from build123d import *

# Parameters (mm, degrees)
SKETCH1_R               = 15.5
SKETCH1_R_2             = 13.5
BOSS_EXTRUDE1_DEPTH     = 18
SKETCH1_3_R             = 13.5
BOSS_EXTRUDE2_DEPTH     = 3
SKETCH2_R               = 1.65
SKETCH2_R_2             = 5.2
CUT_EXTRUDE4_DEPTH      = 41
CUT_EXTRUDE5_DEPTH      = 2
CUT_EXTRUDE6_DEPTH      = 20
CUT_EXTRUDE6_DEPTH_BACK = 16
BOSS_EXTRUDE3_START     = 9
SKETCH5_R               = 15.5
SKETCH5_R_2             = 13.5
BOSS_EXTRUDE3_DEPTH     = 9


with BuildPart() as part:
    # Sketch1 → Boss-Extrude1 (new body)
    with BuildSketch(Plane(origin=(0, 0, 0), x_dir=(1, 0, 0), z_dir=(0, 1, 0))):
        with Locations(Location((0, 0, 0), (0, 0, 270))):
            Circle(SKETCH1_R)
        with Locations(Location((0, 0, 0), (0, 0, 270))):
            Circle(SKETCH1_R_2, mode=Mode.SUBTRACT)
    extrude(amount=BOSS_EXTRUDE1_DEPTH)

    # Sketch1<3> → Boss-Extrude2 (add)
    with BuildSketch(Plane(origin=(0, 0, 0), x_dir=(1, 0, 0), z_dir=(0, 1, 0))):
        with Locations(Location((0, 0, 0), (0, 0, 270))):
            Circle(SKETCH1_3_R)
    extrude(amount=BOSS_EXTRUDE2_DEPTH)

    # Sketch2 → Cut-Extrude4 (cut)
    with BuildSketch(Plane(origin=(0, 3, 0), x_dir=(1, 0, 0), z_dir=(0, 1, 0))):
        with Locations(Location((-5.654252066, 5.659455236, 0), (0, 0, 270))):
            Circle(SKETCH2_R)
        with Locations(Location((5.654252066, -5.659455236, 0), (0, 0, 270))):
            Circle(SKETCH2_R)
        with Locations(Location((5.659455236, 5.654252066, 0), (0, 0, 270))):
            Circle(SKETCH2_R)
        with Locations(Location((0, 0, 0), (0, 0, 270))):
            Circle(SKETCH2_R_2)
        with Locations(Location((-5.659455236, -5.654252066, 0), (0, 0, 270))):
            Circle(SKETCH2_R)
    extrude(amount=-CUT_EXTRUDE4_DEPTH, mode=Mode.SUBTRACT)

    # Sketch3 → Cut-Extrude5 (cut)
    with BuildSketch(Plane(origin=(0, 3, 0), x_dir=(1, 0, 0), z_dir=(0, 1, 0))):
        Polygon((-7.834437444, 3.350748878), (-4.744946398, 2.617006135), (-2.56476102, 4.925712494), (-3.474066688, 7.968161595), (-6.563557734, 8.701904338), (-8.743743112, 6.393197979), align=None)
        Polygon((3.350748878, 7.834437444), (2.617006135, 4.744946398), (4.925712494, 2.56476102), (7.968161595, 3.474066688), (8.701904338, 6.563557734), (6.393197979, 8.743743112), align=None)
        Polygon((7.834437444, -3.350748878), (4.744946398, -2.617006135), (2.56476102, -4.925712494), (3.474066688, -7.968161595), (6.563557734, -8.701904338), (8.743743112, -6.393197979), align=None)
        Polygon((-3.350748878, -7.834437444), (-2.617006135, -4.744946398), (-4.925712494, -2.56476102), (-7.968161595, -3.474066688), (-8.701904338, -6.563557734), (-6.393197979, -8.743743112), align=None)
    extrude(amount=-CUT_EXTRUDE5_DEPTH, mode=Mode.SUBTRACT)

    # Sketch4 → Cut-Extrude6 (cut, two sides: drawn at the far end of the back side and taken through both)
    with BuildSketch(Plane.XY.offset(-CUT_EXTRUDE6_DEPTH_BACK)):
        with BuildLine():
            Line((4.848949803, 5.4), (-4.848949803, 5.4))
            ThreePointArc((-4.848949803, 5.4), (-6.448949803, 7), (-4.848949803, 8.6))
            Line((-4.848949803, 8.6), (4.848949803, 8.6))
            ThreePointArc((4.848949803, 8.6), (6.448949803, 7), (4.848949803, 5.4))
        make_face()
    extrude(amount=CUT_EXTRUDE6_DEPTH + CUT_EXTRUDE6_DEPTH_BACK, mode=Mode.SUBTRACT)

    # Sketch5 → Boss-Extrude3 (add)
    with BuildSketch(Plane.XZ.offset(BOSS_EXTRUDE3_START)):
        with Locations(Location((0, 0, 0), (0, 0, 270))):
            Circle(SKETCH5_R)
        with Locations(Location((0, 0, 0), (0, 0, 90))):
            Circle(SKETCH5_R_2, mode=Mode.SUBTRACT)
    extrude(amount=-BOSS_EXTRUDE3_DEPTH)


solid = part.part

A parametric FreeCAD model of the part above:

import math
import FreeCAD as App
import Part
import Sketcher

V = App.Vector
Q = App.Units.Quantity


def add_polygon(sketch, points):
    """Adds a closed chain of lines whose ends are joined by coincident constraints."""
    first, n = sketch.GeometryCount, len(points)
    for a, b in zip(points, points[1:] + points[:1]):
        sketch.addGeometry(Part.LineSegment(App.Vector(*a, 0), App.Vector(*b, 0)), False)
    for i in range(n):
        sketch.addConstraint(Sketcher.Constraint("Coincident", first + i, 2, first + (i + 1) % n, 1))

doc = App.newDocument("Part")
body = doc.addObject("PartDesign::Body", "Body")

# Sketch on XZ plane
sketch1 = doc.addObject("Sketcher::SketchObject", "Sketch")
body.addObject(sketch1)
sketch1.AttachmentSupport = (doc.XZ_Plane, [""])
sketch1.MapMode = "FlatFace"
sketch1.addGeometry([
    Part.Circle(V(0, 0, 0), V(0, 0, 1), 16),
    Part.Circle(V(0, 0, 0), V(0, 0, 1), 14),
], False)
sketch1.addConstraint([
    Sketcher.Constraint("Coincident", 0, 3, -1, 1),
    Sketcher.Constraint("Coincident", 1, 3, -1, 1),
    Sketcher.Constraint("Diameter", 0, Q("31 mm")),
    Sketcher.Constraint("Diameter", 1, Q("27 mm")),
])
pad1 = doc.addObject("PartDesign::Pad", "Pad")
body.addObject(pad1)
pad1.Profile = sketch1
pad1.Length = 18
pad1.Reversed = True

# Sketch on XZ plane
sketch2 = doc.addObject("Sketcher::SketchObject", "Sketch001")
body.addObject(sketch2)
sketch2.AttachmentSupport = (doc.XZ_Plane, [""])
sketch2.MapMode = "FlatFace"
sketch2.addGeometry(Part.Circle(V(0, 0, 0), V(0, 0, 1), 14), False)
sketch2.addConstraint([
    Sketcher.Constraint("Coincident", 0, 3, -1, 1),
    Sketcher.Constraint("Diameter", 0, Q("27 mm")),
])
pad2 = doc.addObject("PartDesign::Pad", "Pad001")
body.addObject(pad2)
pad2.Profile = sketch2
pad2.Length = 3
pad2.Reversed = True

# Sketch on XZ plane
sketch3 = doc.addObject("Sketcher::SketchObject", "Sketch002")
body.addObject(sketch3)
sketch3.AttachmentSupport = (doc.XZ_Plane, [""])
sketch3.MapMode = "FlatFace"
sketch3.AttachmentOffset = App.Placement(V(0, 0, -3), App.Rotation())
sketch3.addGeometry([
    Part.Circle(V(-5.7, -5.7, 0), V(0, 0, 1), 1.6),  # 0
    Part.Circle(V(5.7, 5.7, 0), V(0, 0, 1), 1.6),  # 1
    Part.Circle(V(5.7, -5.7, 0), V(0, 0, 1), 1.6),  # 2
    Part.Circle(V(0, 0, 0), V(0, 0, 1), 5.2),  # 3
    Part.Circle(V(-5.7, 5.7, 0), V(0, 0, 1), 1.6),  # 4
], False)
sketch3.addConstraint([
    Sketcher.Constraint("Coincident", 3, 3, -1, 1),
    Sketcher.Constraint("Equal", 0, 1),
    Sketcher.Constraint("Equal", 1, 2),
    Sketcher.Constraint("Equal", 2, 4),
    Sketcher.Constraint("Symmetric", 0, 3, 1, 3, -1, 1),
    Sketcher.Constraint("Symmetric", 2, 3, 4, 3, -1, 1),
    Sketcher.Constraint("Diameter", 0, Q("3.3 mm")),
    Sketcher.Constraint("Diameter", 3, Q("10.4 mm")),
    Sketcher.Constraint("DistanceY", 0, 3, 1, 3, Q("11.31891 mm")),
    Sketcher.Constraint("DistanceX", 4, 3, 2, 3, Q("11.31891 mm")),
    Sketcher.Constraint("DistanceX", 0, 3, -1, 1, Q("5.654252 mm")),
    Sketcher.Constraint("DistanceY", 2, 3, -1, 1, Q("5.654252 mm")),
])
pocket1 = doc.addObject("PartDesign::Pocket", "Pocket")
body.addObject(pocket1)
pocket1.Profile = sketch3
pocket1.Length = 41
pocket1.Reversed = True

# Sketch on XZ plane
sketch4 = doc.addObject("Sketcher::SketchObject", "Sketch003")
body.addObject(sketch4)
sketch4.AttachmentSupport = (doc.XZ_Plane, [""])
sketch4.MapMode = "FlatFace"
sketch4.AttachmentOffset = App.Placement(V(0, 0, -3), App.Rotation())
add_polygon(sketch4, [(-7.8, -3.4), (-4.7, -2.6), (-2.6, -4.9), (-3.5, -8), (-6.6, -8.7), (-8.7, -6.4)])  # lines 0-5
add_polygon(sketch4, [(3.4, -7.8), (2.6, -4.7), (4.9, -2.6), (8, -3.5), (8.7, -6.6), (6.4, -8.7)])  # lines 6-11
add_polygon(sketch4, [(7.8, 3.4), (4.7, 2.6), (2.6, 4.9), (3.5, 8), (6.6, 8.7), (8.7, 6.4)])  # lines 12-17
add_polygon(sketch4, [(-3.4, 7.8), (-2.6, 4.7), (-4.9, 2.6), (-8, 3.5), (-8.7, 6.6), (-6.4, 8.7)])  # lines 18-23
sketch4.addConstraint([
    Sketcher.Constraint("Symmetric", 0, 2, 12, 2, -1, 1),
    Sketcher.Constraint("Symmetric", 1, 2, 13, 2, -1, 1),
    Sketcher.Constraint("Symmetric", 2, 2, 14, 2, -1, 1),
    Sketcher.Constraint("Symmetric", 3, 2, 15, 2, -1, 1),
    Sketcher.Constraint("Symmetric", 4, 2, 16, 2, -1, 1),
    Sketcher.Constraint("Symmetric", 5, 2, 17, 2, -1, 1),
    Sketcher.Constraint("Symmetric", 6, 2, 18, 2, -1, 1),
    Sketcher.Constraint("Symmetric", 7, 2, 19, 2, -1, 1),
    Sketcher.Constraint("Symmetric", 8, 2, 20, 2, -1, 1),
    Sketcher.Constraint("Symmetric", 9, 2, 21, 2, -1, 1),
    Sketcher.Constraint("Symmetric", 10, 2, 22, 2, -1, 1),
    Sketcher.Constraint("Symmetric", 11, 2, 23, 2, -1, 1),
    Sketcher.Constraint("Parallel", 0, 3),
    Sketcher.Constraint("Parallel", 1, 4),
    Sketcher.Constraint("Parallel", 2, 5),
    Sketcher.Constraint("Perpendicular", 3, 6),
    Sketcher.Constraint("Perpendicular", 4, 7),
    Sketcher.Constraint("Perpendicular", 5, 8),
    Sketcher.Constraint("Parallel", 6, 9),
    Sketcher.Constraint("Parallel", 7, 10),
    Sketcher.Constraint("Parallel", 8, 11),
    Sketcher.Constraint("Equal", 0, 1),
    Sketcher.Constraint("Equal", 1, 2),
    Sketcher.Constraint("Equal", 2, 3),
    Sketcher.Constraint("Equal", 5, 6),
    Sketcher.Constraint("Equal", 6, 7),
    Sketcher.Constraint("Equal", 7, 8),
    Sketcher.Constraint("Equal", 8, 9),
    Sketcher.Constraint("Angle", 0, Q("13.360019 deg")),
    Sketcher.Constraint("Angle", 1, Q("-46.639981 deg")),
    Sketcher.Constraint("Angle", 2, Q("-106.639981 deg")),
    Sketcher.Constraint("DistanceY", 3, 2, 0, 2, Q("6.084898 mm")),
    Sketcher.Constraint("DistanceY", 2, 2, 7, 2, Q("5.403401 mm")),
    Sketcher.Constraint("DistanceX", 13, 2, 8, 2, Q("5.403401 mm")),
    Sketcher.Constraint("DistanceX", 1, 2, -1, 1, Q("2.564761 mm")),
    Sketcher.Constraint("DistanceY", 2, 2, -1, 1, Q("7.968162 mm")),
])
pocket2 = doc.addObject("PartDesign::Pocket", "Pocket001")
body.addObject(pocket2)
pocket2.Profile = sketch4
pocket2.Length = 2
pocket2.Reversed = True

# Sketch on XY plane
sketch5 = doc.addObject("Sketcher::SketchObject", "Sketch004")
body.addObject(sketch5)
sketch5.AttachmentSupport = (doc.XY_Plane, [""])
sketch5.MapMode = "FlatFace"
sketch5.addGeometry([
    Part.LineSegment(V(-4.8, 5.4, 0), V(4.8, 5.4, 0)),
    Part.ArcOfCircle(Part.Circle(V(4.8, 7, 0), V(0, 0, 1), 1.6), math.radians(-90), math.radians(90)),
    Part.LineSegment(V(4.8, 8.6, 0), V(-4.8, 8.6, 0)),
    Part.ArcOfCircle(Part.Circle(V(-4.8, 7, 0), V(0, 0, 1), 1.6), math.radians(90), math.radians(270)),
], False)
sketch5.addConstraint([
    Sketcher.Constraint("Tangent", 0, 2, 1, 1),
    Sketcher.Constraint("Tangent", 1, 2, 2, 1),
    Sketcher.Constraint("Tangent", 2, 2, 3, 1),
    Sketcher.Constraint("Tangent", 3, 2, 0, 1),
    Sketcher.Constraint("Horizontal", 0),
    Sketcher.Constraint("Horizontal", 2),
    Sketcher.Constraint("Radius", 1, Q("1.6 mm")),
    Sketcher.Constraint("DistanceY", -1, 1, 1, 3, Q("7 mm")),
    Sketcher.Constraint("DistanceX", 0, 1, 0, 2, Q("9.6979 mm")),
    Sketcher.Constraint("DistanceX", -1, 1, 1, 3, Q("4.84895 mm")),
])
pocket3 = doc.addObject("PartDesign::Pocket", "Pocket002")
body.addObject(pocket3)
pocket3.Profile = sketch5
pocket3.Type = "ThroughAll"
pocket3.Midplane = True

# Sketch on XZ plane
sketch6 = doc.addObject("Sketcher::SketchObject", "Sketch005")
body.addObject(sketch6)
sketch6.AttachmentSupport = (doc.XZ_Plane, [""])
sketch6.MapMode = "FlatFace"
sketch6.AttachmentOffset = App.Placement(V(0, 0, 9), App.Rotation())
sketch6.addGeometry([
    Part.Circle(V(0, 0, 0), V(0, 0, 1), 16),
    Part.Circle(V(0, 0, 0), V(0, 0, 1), 14),
], False)
sketch6.addConstraint([
    Sketcher.Constraint("Coincident", 0, 3, -1, 1),
    Sketcher.Constraint("Coincident", 1, 3, -1, 1),
    Sketcher.Constraint("Diameter", 0, Q("31 mm")),
    Sketcher.Constraint("Diameter", 1, Q("27 mm")),
])
pad3 = doc.addObject("PartDesign::Pad", "Pad002")
body.addObject(pad3)
pad3.Profile = sketch6
pad3.Length = 9
pad3.Reversed = True

doc.recompute()
